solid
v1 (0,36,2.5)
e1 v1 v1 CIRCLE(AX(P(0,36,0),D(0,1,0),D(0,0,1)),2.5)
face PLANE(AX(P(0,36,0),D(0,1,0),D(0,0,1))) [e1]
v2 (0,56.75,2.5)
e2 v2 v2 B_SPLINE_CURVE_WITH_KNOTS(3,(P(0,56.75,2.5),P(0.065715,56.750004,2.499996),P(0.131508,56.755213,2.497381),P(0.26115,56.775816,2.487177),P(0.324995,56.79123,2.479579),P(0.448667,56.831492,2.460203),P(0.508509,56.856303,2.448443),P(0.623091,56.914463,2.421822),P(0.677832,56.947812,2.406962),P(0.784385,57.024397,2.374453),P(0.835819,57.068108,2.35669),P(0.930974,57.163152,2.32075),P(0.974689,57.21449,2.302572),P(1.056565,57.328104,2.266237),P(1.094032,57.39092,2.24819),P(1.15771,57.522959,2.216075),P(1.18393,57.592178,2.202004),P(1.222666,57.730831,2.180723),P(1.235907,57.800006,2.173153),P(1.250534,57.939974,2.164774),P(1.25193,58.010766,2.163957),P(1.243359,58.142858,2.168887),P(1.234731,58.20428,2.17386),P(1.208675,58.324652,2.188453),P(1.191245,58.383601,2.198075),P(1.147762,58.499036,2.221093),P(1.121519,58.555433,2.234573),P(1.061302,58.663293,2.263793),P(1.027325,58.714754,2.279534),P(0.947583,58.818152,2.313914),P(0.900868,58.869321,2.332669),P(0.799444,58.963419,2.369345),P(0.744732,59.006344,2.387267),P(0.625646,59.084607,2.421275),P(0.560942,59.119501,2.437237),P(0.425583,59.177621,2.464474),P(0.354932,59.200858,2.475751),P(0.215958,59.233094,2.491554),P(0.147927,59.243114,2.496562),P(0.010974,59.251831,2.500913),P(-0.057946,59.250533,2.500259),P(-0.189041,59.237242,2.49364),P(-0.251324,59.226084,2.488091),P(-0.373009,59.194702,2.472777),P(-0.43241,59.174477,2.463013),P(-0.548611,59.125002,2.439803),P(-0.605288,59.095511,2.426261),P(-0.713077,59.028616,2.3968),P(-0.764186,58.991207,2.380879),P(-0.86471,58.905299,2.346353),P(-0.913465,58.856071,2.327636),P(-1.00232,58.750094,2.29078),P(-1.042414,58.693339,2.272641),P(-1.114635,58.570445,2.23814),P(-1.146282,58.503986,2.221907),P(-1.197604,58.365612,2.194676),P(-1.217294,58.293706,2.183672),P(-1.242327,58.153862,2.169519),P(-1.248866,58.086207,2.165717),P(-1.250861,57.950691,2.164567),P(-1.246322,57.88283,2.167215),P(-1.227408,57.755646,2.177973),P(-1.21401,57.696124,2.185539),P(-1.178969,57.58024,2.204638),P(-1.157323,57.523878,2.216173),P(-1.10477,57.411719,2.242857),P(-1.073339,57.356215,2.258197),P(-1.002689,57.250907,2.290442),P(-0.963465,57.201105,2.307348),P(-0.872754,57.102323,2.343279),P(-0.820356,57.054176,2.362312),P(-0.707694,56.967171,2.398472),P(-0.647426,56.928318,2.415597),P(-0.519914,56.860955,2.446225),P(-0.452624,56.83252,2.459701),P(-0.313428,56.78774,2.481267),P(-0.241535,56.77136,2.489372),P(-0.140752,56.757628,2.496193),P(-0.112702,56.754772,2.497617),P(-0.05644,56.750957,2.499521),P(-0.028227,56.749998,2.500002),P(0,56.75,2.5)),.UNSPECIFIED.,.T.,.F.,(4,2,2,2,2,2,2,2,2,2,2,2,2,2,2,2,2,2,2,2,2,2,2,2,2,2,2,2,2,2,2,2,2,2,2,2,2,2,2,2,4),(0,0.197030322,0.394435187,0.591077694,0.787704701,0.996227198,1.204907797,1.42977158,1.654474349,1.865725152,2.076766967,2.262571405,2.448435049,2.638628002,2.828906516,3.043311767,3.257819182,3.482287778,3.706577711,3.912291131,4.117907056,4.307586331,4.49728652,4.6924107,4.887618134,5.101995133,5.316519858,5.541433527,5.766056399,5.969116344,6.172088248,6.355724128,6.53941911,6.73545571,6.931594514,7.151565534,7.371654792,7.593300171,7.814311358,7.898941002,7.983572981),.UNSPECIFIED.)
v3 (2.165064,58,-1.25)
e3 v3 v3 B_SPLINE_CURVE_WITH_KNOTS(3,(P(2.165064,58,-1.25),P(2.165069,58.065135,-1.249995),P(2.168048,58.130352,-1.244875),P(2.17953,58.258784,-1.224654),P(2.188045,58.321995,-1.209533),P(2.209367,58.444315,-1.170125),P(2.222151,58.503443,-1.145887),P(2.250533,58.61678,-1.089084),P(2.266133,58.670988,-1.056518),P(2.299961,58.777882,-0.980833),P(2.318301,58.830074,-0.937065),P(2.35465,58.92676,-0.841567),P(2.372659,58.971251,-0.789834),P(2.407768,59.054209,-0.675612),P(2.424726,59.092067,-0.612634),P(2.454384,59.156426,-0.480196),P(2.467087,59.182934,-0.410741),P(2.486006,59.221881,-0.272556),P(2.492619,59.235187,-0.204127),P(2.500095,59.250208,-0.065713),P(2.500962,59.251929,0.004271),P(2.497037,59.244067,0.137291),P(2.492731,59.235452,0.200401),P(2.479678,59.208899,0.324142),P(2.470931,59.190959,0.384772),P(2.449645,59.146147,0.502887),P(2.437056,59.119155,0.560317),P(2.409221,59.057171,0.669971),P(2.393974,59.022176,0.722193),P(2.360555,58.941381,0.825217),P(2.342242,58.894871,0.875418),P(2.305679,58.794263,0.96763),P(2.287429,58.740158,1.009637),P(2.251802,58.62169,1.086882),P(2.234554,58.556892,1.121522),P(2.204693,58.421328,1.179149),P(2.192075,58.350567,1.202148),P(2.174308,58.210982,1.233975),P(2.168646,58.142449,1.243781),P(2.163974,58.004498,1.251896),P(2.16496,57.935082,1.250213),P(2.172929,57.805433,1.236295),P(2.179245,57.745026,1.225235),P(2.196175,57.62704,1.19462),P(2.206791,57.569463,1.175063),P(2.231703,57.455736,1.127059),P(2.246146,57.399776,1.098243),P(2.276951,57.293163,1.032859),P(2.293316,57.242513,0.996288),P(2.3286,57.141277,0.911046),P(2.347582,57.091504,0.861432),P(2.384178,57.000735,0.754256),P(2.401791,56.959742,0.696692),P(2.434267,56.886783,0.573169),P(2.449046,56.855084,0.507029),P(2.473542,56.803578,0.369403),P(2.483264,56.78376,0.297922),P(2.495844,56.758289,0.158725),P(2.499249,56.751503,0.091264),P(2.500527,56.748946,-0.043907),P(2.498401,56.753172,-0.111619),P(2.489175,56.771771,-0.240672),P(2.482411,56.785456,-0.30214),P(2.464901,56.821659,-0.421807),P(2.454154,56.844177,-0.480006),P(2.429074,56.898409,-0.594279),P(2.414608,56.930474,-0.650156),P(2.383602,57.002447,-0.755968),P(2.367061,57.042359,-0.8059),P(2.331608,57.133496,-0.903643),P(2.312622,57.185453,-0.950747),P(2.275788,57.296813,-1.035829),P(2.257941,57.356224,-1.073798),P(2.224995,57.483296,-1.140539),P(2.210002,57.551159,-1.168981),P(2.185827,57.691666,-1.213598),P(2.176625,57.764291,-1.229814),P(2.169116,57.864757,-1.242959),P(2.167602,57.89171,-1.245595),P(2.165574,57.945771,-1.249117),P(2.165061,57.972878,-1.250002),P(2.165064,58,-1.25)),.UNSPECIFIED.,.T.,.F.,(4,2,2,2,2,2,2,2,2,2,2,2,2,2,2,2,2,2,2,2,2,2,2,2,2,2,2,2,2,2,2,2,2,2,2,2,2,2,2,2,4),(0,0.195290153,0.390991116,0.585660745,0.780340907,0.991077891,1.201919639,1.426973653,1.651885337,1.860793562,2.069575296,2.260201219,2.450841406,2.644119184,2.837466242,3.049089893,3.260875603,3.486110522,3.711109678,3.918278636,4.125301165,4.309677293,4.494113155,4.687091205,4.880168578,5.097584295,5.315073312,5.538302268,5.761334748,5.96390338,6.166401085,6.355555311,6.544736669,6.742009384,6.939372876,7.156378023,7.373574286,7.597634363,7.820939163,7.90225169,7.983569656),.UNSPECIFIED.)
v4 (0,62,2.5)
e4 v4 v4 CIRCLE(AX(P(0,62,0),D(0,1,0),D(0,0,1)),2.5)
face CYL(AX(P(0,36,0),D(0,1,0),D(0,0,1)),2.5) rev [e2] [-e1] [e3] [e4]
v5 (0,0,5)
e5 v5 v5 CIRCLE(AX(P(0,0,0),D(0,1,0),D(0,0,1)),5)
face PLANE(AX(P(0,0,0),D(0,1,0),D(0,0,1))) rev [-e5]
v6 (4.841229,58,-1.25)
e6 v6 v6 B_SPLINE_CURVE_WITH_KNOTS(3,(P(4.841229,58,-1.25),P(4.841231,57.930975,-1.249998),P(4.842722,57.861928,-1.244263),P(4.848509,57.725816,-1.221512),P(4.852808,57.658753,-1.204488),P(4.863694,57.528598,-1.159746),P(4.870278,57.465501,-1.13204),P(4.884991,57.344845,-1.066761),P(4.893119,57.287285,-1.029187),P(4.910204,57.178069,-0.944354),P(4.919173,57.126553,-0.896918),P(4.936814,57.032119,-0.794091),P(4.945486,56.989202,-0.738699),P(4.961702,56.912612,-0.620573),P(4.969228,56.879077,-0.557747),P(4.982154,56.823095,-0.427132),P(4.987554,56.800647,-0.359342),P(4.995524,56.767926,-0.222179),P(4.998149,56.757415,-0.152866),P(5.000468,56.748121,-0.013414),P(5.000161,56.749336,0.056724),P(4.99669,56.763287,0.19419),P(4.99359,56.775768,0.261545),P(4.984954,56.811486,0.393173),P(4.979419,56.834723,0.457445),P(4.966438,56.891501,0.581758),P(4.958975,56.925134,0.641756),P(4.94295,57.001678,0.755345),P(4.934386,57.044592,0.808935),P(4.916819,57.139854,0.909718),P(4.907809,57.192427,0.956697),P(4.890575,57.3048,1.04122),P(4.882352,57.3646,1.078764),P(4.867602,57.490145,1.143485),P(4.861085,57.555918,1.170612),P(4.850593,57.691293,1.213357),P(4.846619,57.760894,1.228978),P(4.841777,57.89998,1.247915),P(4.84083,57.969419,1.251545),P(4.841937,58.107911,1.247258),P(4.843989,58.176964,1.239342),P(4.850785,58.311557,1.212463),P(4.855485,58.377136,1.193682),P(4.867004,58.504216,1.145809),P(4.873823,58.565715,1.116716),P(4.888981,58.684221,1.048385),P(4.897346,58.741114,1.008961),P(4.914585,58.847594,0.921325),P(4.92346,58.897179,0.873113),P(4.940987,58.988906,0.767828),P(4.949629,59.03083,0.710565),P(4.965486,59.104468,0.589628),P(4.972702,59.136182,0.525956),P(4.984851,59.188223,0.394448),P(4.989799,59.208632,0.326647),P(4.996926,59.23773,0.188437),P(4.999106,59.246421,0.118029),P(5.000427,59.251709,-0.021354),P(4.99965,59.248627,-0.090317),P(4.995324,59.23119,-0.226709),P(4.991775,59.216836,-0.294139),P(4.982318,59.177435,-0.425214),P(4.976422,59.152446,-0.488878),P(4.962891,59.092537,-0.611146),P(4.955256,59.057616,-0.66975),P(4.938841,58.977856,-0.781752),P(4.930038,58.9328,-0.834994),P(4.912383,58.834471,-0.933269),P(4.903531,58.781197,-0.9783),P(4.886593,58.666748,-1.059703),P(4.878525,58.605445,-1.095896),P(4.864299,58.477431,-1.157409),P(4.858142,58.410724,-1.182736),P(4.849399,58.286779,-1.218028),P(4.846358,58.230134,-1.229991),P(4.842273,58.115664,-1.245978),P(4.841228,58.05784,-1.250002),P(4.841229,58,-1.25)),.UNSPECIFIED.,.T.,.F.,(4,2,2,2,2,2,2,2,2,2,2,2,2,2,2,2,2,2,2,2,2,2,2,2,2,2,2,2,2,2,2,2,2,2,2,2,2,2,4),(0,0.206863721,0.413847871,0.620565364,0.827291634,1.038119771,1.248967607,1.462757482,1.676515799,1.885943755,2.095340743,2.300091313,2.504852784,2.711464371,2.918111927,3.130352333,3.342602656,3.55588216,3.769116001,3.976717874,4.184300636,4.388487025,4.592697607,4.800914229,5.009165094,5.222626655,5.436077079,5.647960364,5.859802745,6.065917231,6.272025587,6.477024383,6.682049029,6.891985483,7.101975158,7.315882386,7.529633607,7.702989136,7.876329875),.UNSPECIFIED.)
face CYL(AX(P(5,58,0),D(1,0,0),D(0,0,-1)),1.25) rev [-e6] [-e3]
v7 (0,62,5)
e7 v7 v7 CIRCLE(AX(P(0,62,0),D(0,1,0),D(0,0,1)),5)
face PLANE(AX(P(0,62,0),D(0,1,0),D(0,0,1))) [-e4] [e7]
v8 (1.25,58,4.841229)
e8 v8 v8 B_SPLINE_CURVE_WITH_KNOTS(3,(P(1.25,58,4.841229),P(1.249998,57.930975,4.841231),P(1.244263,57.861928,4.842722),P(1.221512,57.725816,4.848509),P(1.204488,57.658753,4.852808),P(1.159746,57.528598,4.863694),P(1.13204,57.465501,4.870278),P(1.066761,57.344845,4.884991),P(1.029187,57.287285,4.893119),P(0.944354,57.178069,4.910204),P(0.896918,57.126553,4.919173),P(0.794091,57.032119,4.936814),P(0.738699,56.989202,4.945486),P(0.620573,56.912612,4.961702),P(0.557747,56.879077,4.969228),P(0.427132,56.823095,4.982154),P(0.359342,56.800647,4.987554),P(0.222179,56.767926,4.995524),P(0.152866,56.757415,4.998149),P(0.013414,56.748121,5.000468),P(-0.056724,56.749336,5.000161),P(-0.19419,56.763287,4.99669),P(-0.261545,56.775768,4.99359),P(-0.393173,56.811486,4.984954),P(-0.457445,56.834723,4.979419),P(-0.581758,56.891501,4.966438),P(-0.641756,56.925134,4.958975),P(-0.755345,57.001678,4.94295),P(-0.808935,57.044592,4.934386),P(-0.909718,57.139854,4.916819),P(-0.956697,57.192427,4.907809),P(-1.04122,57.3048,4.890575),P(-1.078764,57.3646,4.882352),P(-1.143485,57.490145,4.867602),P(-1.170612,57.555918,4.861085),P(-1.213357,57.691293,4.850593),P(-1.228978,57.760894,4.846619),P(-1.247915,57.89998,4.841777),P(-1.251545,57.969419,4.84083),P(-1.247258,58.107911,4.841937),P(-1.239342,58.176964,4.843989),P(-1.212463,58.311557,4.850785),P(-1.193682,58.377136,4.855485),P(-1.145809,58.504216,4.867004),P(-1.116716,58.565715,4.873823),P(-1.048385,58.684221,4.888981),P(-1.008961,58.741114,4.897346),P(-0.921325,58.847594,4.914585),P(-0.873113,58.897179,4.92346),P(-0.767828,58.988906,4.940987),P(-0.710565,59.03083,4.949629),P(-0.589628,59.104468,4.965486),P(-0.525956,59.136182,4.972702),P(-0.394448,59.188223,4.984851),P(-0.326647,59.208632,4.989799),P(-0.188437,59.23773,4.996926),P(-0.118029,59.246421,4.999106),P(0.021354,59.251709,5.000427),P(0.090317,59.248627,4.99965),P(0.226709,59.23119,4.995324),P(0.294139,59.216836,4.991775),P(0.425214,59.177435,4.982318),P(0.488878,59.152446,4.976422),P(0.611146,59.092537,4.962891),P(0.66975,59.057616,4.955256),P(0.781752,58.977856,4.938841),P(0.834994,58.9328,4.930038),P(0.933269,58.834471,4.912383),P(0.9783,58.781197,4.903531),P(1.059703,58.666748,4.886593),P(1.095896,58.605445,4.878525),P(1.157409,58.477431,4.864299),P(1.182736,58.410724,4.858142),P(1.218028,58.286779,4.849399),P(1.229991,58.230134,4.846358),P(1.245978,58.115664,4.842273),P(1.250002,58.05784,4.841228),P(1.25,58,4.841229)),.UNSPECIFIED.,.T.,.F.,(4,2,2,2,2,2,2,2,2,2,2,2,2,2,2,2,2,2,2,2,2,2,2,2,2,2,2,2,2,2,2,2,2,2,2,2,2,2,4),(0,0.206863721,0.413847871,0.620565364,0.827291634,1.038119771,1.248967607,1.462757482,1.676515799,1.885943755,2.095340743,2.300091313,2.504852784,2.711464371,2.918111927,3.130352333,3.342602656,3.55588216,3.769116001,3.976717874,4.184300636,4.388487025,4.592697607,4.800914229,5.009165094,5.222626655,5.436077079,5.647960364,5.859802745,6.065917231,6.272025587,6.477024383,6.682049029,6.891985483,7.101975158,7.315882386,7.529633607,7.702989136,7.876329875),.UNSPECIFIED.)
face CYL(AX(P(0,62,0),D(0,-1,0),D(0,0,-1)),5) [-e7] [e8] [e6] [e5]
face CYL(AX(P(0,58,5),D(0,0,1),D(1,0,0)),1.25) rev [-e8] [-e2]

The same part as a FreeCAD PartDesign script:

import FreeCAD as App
import Part
import Sketcher

V = App.Vector
Q = App.Units.Quantity

doc = App.newDocument("Part")
body = doc.addObject("PartDesign::Body", "Body")

# Sketch on XZ plane
sketch1 = body.newObject("Sketcher::SketchObject", "Sketch")
sketch1.AttachmentSupport = (doc.getObject("XZ_Plane"), [""])
sketch1.MapMode = "FlatFace"
sketch1.addGeometry(Part.Circle(V(0, 0, 0), V(0, 0, 1), 5), False)
sketch1.addConstraint([
    Sketcher.Constraint("Coincident", 0, 3, -1, 1),
    Sketcher.Constraint("Diameter", 0, Q("10 mm")),
])
pad1 = body.newObject("PartDesign::Pad", "Pad")
pad1.Profile = sketch1
pad1.Length = 62
pad1.Reversed = True

# Sketch on XZ plane
sketch2 = body.newObject("Sketcher::SketchObject", "Sketch001")
sketch2.AttachmentSupport = (doc.getObject("XZ_Plane"), [""])
sketch2.MapMode = "FlatFace"
sketch2.AttachmentOffset = App.Placement(V(0, 0, -62), App.Rotation())
sketch2.addGeometry(Part.Circle(V(0, 0, 0), V(0, 0, 1), 2.5), False)
sketch2.addConstraint([
    Sketcher.Constraint("Coincident", 0, 3, -1, 1),
    Sketcher.Constraint("Diameter", 0, Q("5 mm")),
])
pocket1 = body.newObject("PartDesign::Pocket", "Pocket")
pocket1.Profile = sketch2
pocket1.Length = 26
pocket1.Reversed = True

# Sketch on XY plane
sketch3 = body.newObject("Sketcher::SketchObject", "Sketch002")
sketch3.AttachmentSupport = (doc.getObject("XY_Plane"), [""])
sketch3.MapMode = "FlatFace"
sketch3.AttachmentOffset = App.Placement(V(0, 0, 5), App.Rotation())
sketch3.addGeometry(Part.Circle(V(0, 58, 0), V(0, 0, 1), 1.2), False)
sketch3.addConstraint([
    Sketcher.Constraint("PointOnObject", 0, 3, -2),
    Sketcher.Constraint("Diameter", 0, Q("2.5 mm")),
    Sketcher.Constraint("DistanceY", -1, 1, 0, 3, Q("58 mm")),
])
pocket2 = body.newObject("PartDesign::Pocket", "Pocket001")
pocket2.Profile = sketch3
pocket2.Type = "UpToFirst"

# Sketch on YZ plane
sketch4 = body.newObject("Sketcher::SketchObject", "Sketch003")
sketch4.AttachmentSupport = (doc.getObject("YZ_Plane"), [""])
sketch4.MapMode = "FlatFace"
sketch4.AttachmentOffset = App.Placement(V(0, 0, 5), App.Rotation())
sketch4.addGeometry(Part.Circle(V(58, 0, 0), V(0, 0, 1), 1.2), False)
sketch4.addConstraint([
    Sketcher.Constraint("PointOnObject", 0, 3, -1),
    Sketcher.Constraint("Diameter", 0, Q("2.5 mm")),
    Sketcher.Constraint("DistanceX", -1, 1, 0, 3, Q("58 mm")),
])
pocket3 = body.newObject("PartDesign::Pocket", "Pocket002")
pocket3.Profile = sketch4
pocket3.Type = "UpToFirst"

doc.recompute()
